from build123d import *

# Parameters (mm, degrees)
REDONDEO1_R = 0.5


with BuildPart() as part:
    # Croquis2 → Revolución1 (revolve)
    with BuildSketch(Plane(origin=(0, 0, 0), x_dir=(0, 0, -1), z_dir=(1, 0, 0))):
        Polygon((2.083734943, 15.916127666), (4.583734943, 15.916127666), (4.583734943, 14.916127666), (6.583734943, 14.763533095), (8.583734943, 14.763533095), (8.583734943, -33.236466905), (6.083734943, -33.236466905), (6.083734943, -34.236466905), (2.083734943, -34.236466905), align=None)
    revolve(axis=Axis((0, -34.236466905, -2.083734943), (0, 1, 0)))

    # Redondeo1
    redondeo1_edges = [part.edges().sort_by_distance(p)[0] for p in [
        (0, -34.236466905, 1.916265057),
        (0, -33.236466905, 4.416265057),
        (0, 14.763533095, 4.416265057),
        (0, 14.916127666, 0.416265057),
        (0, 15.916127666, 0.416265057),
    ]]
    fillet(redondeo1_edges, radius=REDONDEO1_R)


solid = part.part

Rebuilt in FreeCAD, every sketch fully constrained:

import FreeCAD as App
import Part
import Sketcher
from FreeCAD import Vector
Q = App.Units.Quantity


def edges_at(feature, points):
    """Names of the edges that pass closest to the given points."""
    edges = feature.Shape.Edges
    near = lambda p: min(range(len(edges)), key=lambda i: edges[i].distToShape(Part.Vertex(*p))[0])
    return sorted({f"Edge{near(p) + 1}" for p in points})

doc = App.newDocument("Part")
body = doc.addObject("PartDesign::Body", "Body")

# Sketch on YZ plane
sketch1 = body.newObject("Sketcher::SketchObject", "Sketch")
sketch1.AttachmentSupport = (doc.getObject("YZ_Plane"), [""])
sketch1.MapMode = "FlatFace"
sketch1.addGeometry(Part.LineSegment(Vector(15.9, -4.6, 0), Vector(15.9, -2.1, 0)), False)
sketch1.addGeometry(Part.LineSegment(Vector(15.9, -2.1, 0), Vector(-34.2, -2.1, 0)), False)
sketch1.addGeometry(Part.LineSegment(Vector(-34.2, -2.1, 0), Vector(-34.2, -6.1, 0)), False)
sketch1.addGeometry(Part.LineSegment(Vector(-34.2, -6.1, 0), Vector(-33.2, -6.1, 0)), False)
sketch1.addGeometry(Part.LineSegment(Vector(-33.2, -6.1, 0), Vector(-33.2, -8.6, 0)), False)
sketch1.addGeometry(Part.LineSegment(Vector(-33.2, -8.6, 0), Vector(14.8, -8.6, 0)), False)
sketch1.addGeometry(Part.LineSegment(Vector(14.8, -8.6, 0), Vector(14.8, -6.6, 0)), False)
sketch1.addGeometry(Part.LineSegment(Vector(14.8, -6.6, 0), Vector(14.9, -4.6, 0)), False)
sketch1.addGeometry(Part.LineSegment(Vector(14.9, -4.6, 0), Vector(15.9, -4.6, 0)), False)
sketch1.addGeometry(Part.LineSegment(Vector(-34.2, -2.1, 0), Vector(15.9, -2.1, 0)), True)  # axis
sketch1.addConstraint(Sketcher.Constraint("Coincident", 0, 2, 1, 1))
sketch1.addConstraint(Sketcher.Constraint("Coincident", 1, 2, 2, 1))
sketch1.addConstraint(Sketcher.Constraint("Coincident", 2, 2, 3, 1))
sketch1.addConstraint(Sketcher.Constraint("Coincident", 3, 2, 4, 1))
sketch1.addConstraint(Sketcher.Constraint("Coincident", 4, 2, 5, 1))
sketch1.addConstraint(Sketcher.Constraint("Coincident", 5, 2, 6, 1))
sketch1.addConstraint(Sketcher.Constraint("Coincident", 6, 2, 7, 1))
sketch1.addConstraint(Sketcher.Constraint("Coincident", 7, 2, 8, 1))
sketch1.addConstraint(Sketcher.Constraint("Coincident", 8, 2, 0, 1))
sketch1.addConstraint(Sketcher.Constraint("Vertical", 0))
sketch1.addConstraint(Sketcher.Constraint("Horizontal", 1))
sketch1.addConstraint(Sketcher.Constraint("Vertical", 2))
sketch1.addConstraint(Sketcher.Constraint("Horizontal", 3))
sketch1.addConstraint(Sketcher.Constraint("Vertical", 4))
sketch1.addConstraint(Sketcher.Constraint("Horizontal", 5))
sketch1.addConstraint(Sketcher.Constraint("Vertical", 6))
sketch1.addConstraint(Sketcher.Constraint("Horizontal", 8))
sketch1.addConstraint(Sketcher.Constraint("Horizontal", 9))
sketch1.addConstraint(Sketcher.Constraint("Coincident", 9, 1, 1, 2))
sketch1.addConstraint(Sketcher.Constraint("Vertical", 8, 2, 9, 2))
sketch1.addConstraint(Sketcher.Constraint("Equal", 3, 8))
sketch1.addConstraint(Sketcher.Constraint("Equal", 0, 4))
sketch1.addConstraint(Sketcher.Constraint("DistanceX", 3, 1, 3, 2, Q("1 mm")))
sketch1.addConstraint(Sketcher.Constraint("DistanceX", 5, 1, 5, 2, Q("48 mm")))
sketch1.addConstraint(Sketcher.Constraint("DistanceY", 2, 2, 2, 1, Q("4 mm")))
sketch1.addConstraint(Sketcher.Constraint("DistanceY", 6, 1, 6, 2, Q("2 mm")))
sketch1.addConstraint(Sketcher.Constraint("DistanceY", 0, 1, 0, 2, Q("2.5 mm")))
sketch1.addConstraint(Sketcher.Constraint("DistanceX", 1, 2, 1, 1, Q("50.152595 mm")))
sketch1.addConstraint(Sketcher.Constraint("DistanceX", -1, 1, 0, 2, Q("15.916128 mm")))
sketch1.addConstraint(Sketcher.Constraint("DistanceY", 0, 2, -1, 1, Q("2.083735 mm")))
revolution = body.newObject("PartDesign::Revolution", "Revolution")
revolution.Profile = sketch1
revolution.ReferenceAxis = (sketch1, ["Axis0"])
revolution.Angle = 360
doc.recompute()

fillet = body.newObject("PartDesign::Fillet", "Fillet")
fillet.Base = (revolution, edges_at(revolution, [
    (0, -34.236, 1.916),
    (0, -33.236, 4.416),
    (0, 14.764, 4.416),
    (0, 14.916, 0.416),
    (0, 15.916, 0.416),
]))
fillet.Radius = 0.5

doc.recompute()
